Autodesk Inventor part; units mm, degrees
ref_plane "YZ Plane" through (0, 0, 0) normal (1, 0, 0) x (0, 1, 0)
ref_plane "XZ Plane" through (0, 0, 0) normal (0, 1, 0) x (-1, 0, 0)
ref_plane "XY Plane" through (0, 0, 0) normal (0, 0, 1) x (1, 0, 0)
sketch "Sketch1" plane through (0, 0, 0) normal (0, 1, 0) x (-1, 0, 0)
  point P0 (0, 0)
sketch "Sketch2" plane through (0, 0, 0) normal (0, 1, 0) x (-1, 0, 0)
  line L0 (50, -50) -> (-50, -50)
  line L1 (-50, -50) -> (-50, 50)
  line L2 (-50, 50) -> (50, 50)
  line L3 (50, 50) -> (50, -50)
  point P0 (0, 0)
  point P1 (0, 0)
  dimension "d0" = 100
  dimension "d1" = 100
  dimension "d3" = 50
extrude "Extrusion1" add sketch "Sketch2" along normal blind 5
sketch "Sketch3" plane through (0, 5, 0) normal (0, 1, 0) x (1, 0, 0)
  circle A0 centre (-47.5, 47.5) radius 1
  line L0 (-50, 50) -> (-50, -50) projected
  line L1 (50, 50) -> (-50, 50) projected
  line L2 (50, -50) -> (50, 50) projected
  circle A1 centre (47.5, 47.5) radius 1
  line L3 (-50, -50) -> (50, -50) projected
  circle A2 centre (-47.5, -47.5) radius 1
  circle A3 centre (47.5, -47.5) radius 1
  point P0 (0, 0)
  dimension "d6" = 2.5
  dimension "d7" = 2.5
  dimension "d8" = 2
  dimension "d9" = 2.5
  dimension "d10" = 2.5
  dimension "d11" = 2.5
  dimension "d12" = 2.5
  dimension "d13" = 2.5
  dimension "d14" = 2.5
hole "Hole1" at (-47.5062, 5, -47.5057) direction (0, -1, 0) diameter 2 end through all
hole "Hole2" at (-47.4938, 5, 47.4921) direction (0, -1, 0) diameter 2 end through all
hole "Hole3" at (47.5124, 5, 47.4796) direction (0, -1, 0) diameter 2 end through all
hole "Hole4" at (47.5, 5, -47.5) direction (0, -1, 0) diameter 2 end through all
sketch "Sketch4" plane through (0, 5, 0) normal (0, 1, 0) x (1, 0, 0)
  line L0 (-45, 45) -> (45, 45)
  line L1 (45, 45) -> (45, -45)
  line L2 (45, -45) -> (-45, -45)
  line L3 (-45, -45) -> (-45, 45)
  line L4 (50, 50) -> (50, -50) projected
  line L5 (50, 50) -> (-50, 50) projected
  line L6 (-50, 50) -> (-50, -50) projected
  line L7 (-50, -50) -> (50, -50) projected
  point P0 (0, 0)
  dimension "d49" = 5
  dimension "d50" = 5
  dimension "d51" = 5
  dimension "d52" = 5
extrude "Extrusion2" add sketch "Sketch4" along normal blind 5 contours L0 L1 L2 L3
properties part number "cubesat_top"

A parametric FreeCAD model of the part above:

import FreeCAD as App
import Part
import Sketcher
from FreeCAD import Vector

doc = App.newDocument("Part")
body = doc.addObject("PartDesign::Body", "Body")

# Sketch on XZ plane
sketch1 = body.newObject("Sketcher::SketchObject", "Sketch")
sketch1.AttachmentSupport = (doc.getObject("XZ_Plane"), [""])
sketch1.MapMode = "FlatFace"
sketch1.addGeometry(Part.LineSegment(Vector(50, -50, 0), Vector(-50, -50, 0)), False)
sketch1.addGeometry(Part.LineSegment(Vector(-50, -50, 0), Vector(-50, 50, 0)), False)
sketch1.addGeometry(Part.LineSegment(Vector(-50, 50, 0), Vector(50, 50, 0)), False)
sketch1.addGeometry(Part.LineSegment(Vector(50, 50, 0), Vector(50, -50, 0)), False)
sketch1.addConstraint(Sketcher.Constraint("Coincident", 0, 2, 1, 1))
sketch1.addConstraint(Sketcher.Constraint("Coincident", 1, 2, 2, 1))
sketch1.addConstraint(Sketcher.Constraint("Coincident", 2, 2, 3, 1))
sketch1.addConstraint(Sketcher.Constraint("Coincident", 3, 2, 0, 1))
sketch1.addConstraint(Sketcher.Constraint("Horizontal", 0))
sketch1.addConstraint(Sketcher.Constraint("Vertical", 1))
sketch1.addConstraint(Sketcher.Constraint("Horizontal", 2))
sketch1.addConstraint(Sketcher.Constraint("Vertical", 3))
sketch1.addConstraint(Sketcher.Constraint("Symmetric", 0, 2, 2, 2, -1, 1))
sketch1.addConstraint(Sketcher.Constraint("Equal", 2, 1))
sketch1.addConstraint(Sketcher.Constraint("DistanceX", 0, 2, 0, 1, 100.0))
pad1 = body.newObject("PartDesign::Pad", "Pad")
pad1.Profile = sketch1
pad1.Length = 5
pad1.Reversed = True

# Sketch on XZ plane
sketch2 = body.newObject("Sketcher::SketchObject", "Sketch001")
sketch2.AttachmentSupport = (doc.getObject("XZ_Plane"), [""])
sketch2.MapMode = "FlatFace"
sketch2.AttachmentOffset = App.Placement(Vector(0, 0, -5), App.Rotation())
sketch2.addGeometry(Part.Circle(Vector(-47.5, -47.5, 0), Vector(0, 0, 1), 1), False)
sketch2.addConstraint(Sketcher.Constraint("Diameter", 0, 2.0))
sketch2.addConstraint(Sketcher.Constraint("DistanceX", 0, 3, -1, 1, 47.5062))
sketch2.addConstraint(Sketcher.Constraint("DistanceY", 0, 3, -1, 1, 47.5057))
doc.recompute()
hole = body.newObject("PartDesign::Hole", "Hole")
hole.Profile = sketch2
hole.ThreadType = "None"
hole.Diameter = 2
hole.DepthType = "ThroughAll"
hole.Reversed = True

# Sketch on XZ plane
sketch3 = body.newObject("Sketcher::SketchObject", "Sketch002")
sketch3.AttachmentSupport = (doc.getObject("XZ_Plane"), [""])
sketch3.MapMode = "FlatFace"
sketch3.AttachmentOffset = App.Placement(Vector(0, 0, -5), App.Rotation())
sketch3.addGeometry(Part.Circle(Vector(-47.5, 47.5, 0), Vector(0, 0, 1), 1), False)
sketch3.addConstraint(Sketcher.Constraint("Diameter", 0, 2.0))
sketch3.addConstraint(Sketcher.Constraint("DistanceY", -1, 1, 0, 3, 47.492))
sketch3.addConstraint(Sketcher.Constraint("DistanceX", 0, 3, -1, 1, 47.4938))
doc.recompute()
hole2 = body.newObject("PartDesign::Hole", "Hole001")
hole2.Profile = sketch3
hole2.ThreadType = "None"
hole2.Diameter = 2
hole2.DepthType = "ThroughAll"
hole2.Reversed = True

# Sketch on XZ plane
sketch4 = body.newObject("Sketcher::SketchObject", "Sketch003")
sketch4.AttachmentSupport = (doc.getObject("XZ_Plane"), [""])
sketch4.MapMode = "FlatFace"
sketch4.AttachmentOffset = App.Placement(Vector(0, 0, -5), App.Rotation())
sketch4.addGeometry(Part.Circle(Vector(47.5, 47.5, 0), Vector(0, 0, 1), 1), False)
sketch4.addConstraint(Sketcher.Constraint("Diameter", 0, 2.0))
sketch4.addConstraint(Sketcher.Constraint("DistanceX", -1, 1, 0, 3, 47.5124))
sketch4.addConstraint(Sketcher.Constraint("DistanceY", -1, 1, 0, 3, 47.4796))
doc.recompute()
hole3 = body.newObject("PartDesign::Hole", "Hole002")
hole3.Profile = sketch4
hole3.ThreadType = "None"
hole3.Diameter = 2
hole3.DepthType = "ThroughAll"
hole3.Reversed = True

# Sketch on XZ plane
sketch5 = body.newObject("Sketcher::SketchObject", "Sketch004")
sketch5.AttachmentSupport = (doc.getObject("XZ_Plane"), [""])
sketch5.MapMode = "FlatFace"
sketch5.AttachmentOffset = App.Placement(Vector(0, 0, -5), App.Rotation())
sketch5.addGeometry(Part.Circle(Vector(47.5, -47.5, 0), Vector(0, 0, 1), 1), False)
sketch5.addConstraint(Sketcher.Constraint("Diameter", 0, 2.0))
sketch5.addConstraint(Sketcher.Constraint("DistanceX", -1, 1, 0, 3, 47.5))
sketch5.addConstraint(Sketcher.Constraint("DistanceY", 0, 3, -1, 1, 47.5))
doc.recompute()
hole4 = body.newObject("PartDesign::Hole", "Hole003")
hole4.Profile = sketch5
hole4.ThreadType = "None"
hole4.Diameter = 2
hole4.DepthType = "ThroughAll"
hole4.Reversed = True

# Sketch on XZ plane
sketch6 = body.newObject("Sketcher::SketchObject", "Sketch005")
sketch6.AttachmentSupport = (doc.getObject("XZ_Plane"), [""])
sketch6.MapMode = "FlatFace"
sketch6.AttachmentOffset = App.Placement(Vector(0, 0, -5), App.Rotation())
sketch6.addGeometry(Part.LineSegment(Vector(45, -45, 0), Vector(-45, -45, 0)), False)
sketch6.addGeometry(Part.LineSegment(Vector(-45, -45, 0), Vector(-45, 45, 0)), False)
sketch6.addGeometry(Part.LineSegment(Vector(-45, 45, 0), Vector(45, 45, 0)), False)
sketch6.addGeometry(Part.LineSegment(Vector(45, 45, 0), Vector(45, -45, 0)), False)
sketch6.addConstraint(Sketcher.Constraint("Coincident", 0, 2, 1, 1))
sketch6.addConstraint(Sketcher.Constraint("Coincident", 1, 2, 2, 1))
sketch6.addConstraint(Sketcher.Constraint("Coincident", 2, 2, 3, 1))
sketch6.addConstraint(Sketcher.Constraint("Coincident", 3, 2, 0, 1))
sketch6.addConstraint(Sketcher.Constraint("Horizontal", 0))
sketch6.addConstraint(Sketcher.Constraint("Vertical", 1))
sketch6.addConstraint(Sketcher.Constraint("Horizontal", 2))
sketch6.addConstraint(Sketcher.Constraint("Vertical", 3))
sketch6.addConstraint(Sketcher.Constraint("Symmetric", 0, 2, 2, 2, -1, 1))
sketch6.addConstraint(Sketcher.Constraint("Equal", 2, 1))
sketch6.addConstraint(Sketcher.Constraint("DistanceX", 0, 2, 0, 1, 90.0))
pad2 = body.newObject("PartDesign::Pad", "Pad001")
pad2.Profile = sketch6
pad2.Length = 5
pad2.Reversed = True

doc.recompute()
